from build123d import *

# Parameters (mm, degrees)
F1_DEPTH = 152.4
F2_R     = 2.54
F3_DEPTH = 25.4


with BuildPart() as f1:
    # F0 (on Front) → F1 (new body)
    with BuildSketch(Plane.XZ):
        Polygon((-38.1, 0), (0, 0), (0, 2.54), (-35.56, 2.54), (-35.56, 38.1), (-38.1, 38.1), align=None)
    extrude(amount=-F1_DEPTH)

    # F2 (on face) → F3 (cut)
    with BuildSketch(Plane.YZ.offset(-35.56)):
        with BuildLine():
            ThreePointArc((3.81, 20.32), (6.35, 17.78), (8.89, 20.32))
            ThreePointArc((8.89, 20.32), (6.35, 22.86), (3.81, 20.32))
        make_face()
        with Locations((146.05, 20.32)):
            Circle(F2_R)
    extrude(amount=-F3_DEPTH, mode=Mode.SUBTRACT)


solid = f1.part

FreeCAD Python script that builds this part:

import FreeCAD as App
import Part
import Sketcher
Q = App.Units.Quantity


def add_polygon(sketch, points):
    """Adds a closed chain of lines whose ends are joined by coincident constraints."""
    first, n = sketch.GeometryCount, len(points)
    for a, b in zip(points, points[1:] + points[:1]):
        sketch.addGeometry(Part.LineSegment(App.Vector(*a, 0), App.Vector(*b, 0)), False)
    for i in range(n):
        sketch.addConstraint(Sketcher.Constraint("Coincident", first + i, 2, first + (i + 1) % n, 1))

doc = App.newDocument("Part")
body = doc.addObject("PartDesign::Body", "Body")

# Sketch on XZ plane
sketch1 = body.newObject("Sketcher::SketchObject", "Sketch")
sketch1.AttachmentSupport = (doc.getObject("XZ_Plane"), [""])
sketch1.MapMode = "FlatFace"
add_polygon(sketch1, [(-38.1, 0), (0, 0), (0, 2.5), (-35.6, 2.5), (-35.6, 38.1), (-38.1, 38.1)])  # lines 0-5
sketch1.addConstraint(Sketcher.Constraint("Horizontal", 0))
sketch1.addConstraint(Sketcher.Constraint("Vertical", 1))
sketch1.addConstraint(Sketcher.Constraint("Horizontal", 2))
sketch1.addConstraint(Sketcher.Constraint("Vertical", 3))
sketch1.addConstraint(Sketcher.Constraint("Horizontal", 4))
sketch1.addConstraint(Sketcher.Constraint("Vertical", 5))
sketch1.addConstraint(Sketcher.Constraint("Coincident", 0, 2, -1, 1))
sketch1.addConstraint(Sketcher.Constraint("Equal", 4, 1))
sketch1.addConstraint(Sketcher.Constraint("Equal", 2, 3))
sketch1.addConstraint(Sketcher.Constraint("DistanceX", 0, 1, 0, 2, Q("1.5 in")))
sketch1.addConstraint(Sketcher.Constraint("DistanceX", 2, 2, 2, 1, Q("1.4 in")))
pad1 = body.newObject("PartDesign::Pad", "Pad")
pad1.Profile = sketch1
pad1.Length = Q("6 in")
pad1.Reversed = True

# Sketch on YZ plane
sketch2 = body.newObject("Sketcher::SketchObject", "Sketch001")
sketch2.AttachmentSupport = (doc.getObject("YZ_Plane"), [""])
sketch2.MapMode = "FlatFace"
sketch2.AttachmentOffset = App.Placement(App.Vector(0, 0, -1.4 * 25.4), App.Rotation())
sketch2.addGeometry(Part.Circle(App.Vector(6.3, 20.3, 0), App.Vector(0, 0, 1), 2.5), False)
sketch2.addGeometry(Part.Circle(App.Vector(146.1, 20.3, 0), App.Vector(0, 0, 1), 2.5), False)
sketch2.addConstraint(Sketcher.Constraint("Equal", 0, 1))
sketch2.addConstraint(Sketcher.Constraint("Horizontal", 0, 3, 1, 3))
sketch2.addConstraint(Sketcher.Constraint("Diameter", 0, Q("0.2 in")))
sketch2.addConstraint(Sketcher.Constraint("DistanceY", -1, 1, 0, 3, Q("0.8 in")))
sketch2.addConstraint(Sketcher.Constraint("DistanceX", 0, 3, 1, 3, Q("5.5 in")))
sketch2.addConstraint(Sketcher.Constraint("DistanceX", -1, 1, 0, 3, Q("0.25 in")))
pocket1 = body.newObject("PartDesign::Pocket", "Pocket")
pocket1.Profile = sketch2
pocket1.Length = Q("1 in")

doc.recompute()
